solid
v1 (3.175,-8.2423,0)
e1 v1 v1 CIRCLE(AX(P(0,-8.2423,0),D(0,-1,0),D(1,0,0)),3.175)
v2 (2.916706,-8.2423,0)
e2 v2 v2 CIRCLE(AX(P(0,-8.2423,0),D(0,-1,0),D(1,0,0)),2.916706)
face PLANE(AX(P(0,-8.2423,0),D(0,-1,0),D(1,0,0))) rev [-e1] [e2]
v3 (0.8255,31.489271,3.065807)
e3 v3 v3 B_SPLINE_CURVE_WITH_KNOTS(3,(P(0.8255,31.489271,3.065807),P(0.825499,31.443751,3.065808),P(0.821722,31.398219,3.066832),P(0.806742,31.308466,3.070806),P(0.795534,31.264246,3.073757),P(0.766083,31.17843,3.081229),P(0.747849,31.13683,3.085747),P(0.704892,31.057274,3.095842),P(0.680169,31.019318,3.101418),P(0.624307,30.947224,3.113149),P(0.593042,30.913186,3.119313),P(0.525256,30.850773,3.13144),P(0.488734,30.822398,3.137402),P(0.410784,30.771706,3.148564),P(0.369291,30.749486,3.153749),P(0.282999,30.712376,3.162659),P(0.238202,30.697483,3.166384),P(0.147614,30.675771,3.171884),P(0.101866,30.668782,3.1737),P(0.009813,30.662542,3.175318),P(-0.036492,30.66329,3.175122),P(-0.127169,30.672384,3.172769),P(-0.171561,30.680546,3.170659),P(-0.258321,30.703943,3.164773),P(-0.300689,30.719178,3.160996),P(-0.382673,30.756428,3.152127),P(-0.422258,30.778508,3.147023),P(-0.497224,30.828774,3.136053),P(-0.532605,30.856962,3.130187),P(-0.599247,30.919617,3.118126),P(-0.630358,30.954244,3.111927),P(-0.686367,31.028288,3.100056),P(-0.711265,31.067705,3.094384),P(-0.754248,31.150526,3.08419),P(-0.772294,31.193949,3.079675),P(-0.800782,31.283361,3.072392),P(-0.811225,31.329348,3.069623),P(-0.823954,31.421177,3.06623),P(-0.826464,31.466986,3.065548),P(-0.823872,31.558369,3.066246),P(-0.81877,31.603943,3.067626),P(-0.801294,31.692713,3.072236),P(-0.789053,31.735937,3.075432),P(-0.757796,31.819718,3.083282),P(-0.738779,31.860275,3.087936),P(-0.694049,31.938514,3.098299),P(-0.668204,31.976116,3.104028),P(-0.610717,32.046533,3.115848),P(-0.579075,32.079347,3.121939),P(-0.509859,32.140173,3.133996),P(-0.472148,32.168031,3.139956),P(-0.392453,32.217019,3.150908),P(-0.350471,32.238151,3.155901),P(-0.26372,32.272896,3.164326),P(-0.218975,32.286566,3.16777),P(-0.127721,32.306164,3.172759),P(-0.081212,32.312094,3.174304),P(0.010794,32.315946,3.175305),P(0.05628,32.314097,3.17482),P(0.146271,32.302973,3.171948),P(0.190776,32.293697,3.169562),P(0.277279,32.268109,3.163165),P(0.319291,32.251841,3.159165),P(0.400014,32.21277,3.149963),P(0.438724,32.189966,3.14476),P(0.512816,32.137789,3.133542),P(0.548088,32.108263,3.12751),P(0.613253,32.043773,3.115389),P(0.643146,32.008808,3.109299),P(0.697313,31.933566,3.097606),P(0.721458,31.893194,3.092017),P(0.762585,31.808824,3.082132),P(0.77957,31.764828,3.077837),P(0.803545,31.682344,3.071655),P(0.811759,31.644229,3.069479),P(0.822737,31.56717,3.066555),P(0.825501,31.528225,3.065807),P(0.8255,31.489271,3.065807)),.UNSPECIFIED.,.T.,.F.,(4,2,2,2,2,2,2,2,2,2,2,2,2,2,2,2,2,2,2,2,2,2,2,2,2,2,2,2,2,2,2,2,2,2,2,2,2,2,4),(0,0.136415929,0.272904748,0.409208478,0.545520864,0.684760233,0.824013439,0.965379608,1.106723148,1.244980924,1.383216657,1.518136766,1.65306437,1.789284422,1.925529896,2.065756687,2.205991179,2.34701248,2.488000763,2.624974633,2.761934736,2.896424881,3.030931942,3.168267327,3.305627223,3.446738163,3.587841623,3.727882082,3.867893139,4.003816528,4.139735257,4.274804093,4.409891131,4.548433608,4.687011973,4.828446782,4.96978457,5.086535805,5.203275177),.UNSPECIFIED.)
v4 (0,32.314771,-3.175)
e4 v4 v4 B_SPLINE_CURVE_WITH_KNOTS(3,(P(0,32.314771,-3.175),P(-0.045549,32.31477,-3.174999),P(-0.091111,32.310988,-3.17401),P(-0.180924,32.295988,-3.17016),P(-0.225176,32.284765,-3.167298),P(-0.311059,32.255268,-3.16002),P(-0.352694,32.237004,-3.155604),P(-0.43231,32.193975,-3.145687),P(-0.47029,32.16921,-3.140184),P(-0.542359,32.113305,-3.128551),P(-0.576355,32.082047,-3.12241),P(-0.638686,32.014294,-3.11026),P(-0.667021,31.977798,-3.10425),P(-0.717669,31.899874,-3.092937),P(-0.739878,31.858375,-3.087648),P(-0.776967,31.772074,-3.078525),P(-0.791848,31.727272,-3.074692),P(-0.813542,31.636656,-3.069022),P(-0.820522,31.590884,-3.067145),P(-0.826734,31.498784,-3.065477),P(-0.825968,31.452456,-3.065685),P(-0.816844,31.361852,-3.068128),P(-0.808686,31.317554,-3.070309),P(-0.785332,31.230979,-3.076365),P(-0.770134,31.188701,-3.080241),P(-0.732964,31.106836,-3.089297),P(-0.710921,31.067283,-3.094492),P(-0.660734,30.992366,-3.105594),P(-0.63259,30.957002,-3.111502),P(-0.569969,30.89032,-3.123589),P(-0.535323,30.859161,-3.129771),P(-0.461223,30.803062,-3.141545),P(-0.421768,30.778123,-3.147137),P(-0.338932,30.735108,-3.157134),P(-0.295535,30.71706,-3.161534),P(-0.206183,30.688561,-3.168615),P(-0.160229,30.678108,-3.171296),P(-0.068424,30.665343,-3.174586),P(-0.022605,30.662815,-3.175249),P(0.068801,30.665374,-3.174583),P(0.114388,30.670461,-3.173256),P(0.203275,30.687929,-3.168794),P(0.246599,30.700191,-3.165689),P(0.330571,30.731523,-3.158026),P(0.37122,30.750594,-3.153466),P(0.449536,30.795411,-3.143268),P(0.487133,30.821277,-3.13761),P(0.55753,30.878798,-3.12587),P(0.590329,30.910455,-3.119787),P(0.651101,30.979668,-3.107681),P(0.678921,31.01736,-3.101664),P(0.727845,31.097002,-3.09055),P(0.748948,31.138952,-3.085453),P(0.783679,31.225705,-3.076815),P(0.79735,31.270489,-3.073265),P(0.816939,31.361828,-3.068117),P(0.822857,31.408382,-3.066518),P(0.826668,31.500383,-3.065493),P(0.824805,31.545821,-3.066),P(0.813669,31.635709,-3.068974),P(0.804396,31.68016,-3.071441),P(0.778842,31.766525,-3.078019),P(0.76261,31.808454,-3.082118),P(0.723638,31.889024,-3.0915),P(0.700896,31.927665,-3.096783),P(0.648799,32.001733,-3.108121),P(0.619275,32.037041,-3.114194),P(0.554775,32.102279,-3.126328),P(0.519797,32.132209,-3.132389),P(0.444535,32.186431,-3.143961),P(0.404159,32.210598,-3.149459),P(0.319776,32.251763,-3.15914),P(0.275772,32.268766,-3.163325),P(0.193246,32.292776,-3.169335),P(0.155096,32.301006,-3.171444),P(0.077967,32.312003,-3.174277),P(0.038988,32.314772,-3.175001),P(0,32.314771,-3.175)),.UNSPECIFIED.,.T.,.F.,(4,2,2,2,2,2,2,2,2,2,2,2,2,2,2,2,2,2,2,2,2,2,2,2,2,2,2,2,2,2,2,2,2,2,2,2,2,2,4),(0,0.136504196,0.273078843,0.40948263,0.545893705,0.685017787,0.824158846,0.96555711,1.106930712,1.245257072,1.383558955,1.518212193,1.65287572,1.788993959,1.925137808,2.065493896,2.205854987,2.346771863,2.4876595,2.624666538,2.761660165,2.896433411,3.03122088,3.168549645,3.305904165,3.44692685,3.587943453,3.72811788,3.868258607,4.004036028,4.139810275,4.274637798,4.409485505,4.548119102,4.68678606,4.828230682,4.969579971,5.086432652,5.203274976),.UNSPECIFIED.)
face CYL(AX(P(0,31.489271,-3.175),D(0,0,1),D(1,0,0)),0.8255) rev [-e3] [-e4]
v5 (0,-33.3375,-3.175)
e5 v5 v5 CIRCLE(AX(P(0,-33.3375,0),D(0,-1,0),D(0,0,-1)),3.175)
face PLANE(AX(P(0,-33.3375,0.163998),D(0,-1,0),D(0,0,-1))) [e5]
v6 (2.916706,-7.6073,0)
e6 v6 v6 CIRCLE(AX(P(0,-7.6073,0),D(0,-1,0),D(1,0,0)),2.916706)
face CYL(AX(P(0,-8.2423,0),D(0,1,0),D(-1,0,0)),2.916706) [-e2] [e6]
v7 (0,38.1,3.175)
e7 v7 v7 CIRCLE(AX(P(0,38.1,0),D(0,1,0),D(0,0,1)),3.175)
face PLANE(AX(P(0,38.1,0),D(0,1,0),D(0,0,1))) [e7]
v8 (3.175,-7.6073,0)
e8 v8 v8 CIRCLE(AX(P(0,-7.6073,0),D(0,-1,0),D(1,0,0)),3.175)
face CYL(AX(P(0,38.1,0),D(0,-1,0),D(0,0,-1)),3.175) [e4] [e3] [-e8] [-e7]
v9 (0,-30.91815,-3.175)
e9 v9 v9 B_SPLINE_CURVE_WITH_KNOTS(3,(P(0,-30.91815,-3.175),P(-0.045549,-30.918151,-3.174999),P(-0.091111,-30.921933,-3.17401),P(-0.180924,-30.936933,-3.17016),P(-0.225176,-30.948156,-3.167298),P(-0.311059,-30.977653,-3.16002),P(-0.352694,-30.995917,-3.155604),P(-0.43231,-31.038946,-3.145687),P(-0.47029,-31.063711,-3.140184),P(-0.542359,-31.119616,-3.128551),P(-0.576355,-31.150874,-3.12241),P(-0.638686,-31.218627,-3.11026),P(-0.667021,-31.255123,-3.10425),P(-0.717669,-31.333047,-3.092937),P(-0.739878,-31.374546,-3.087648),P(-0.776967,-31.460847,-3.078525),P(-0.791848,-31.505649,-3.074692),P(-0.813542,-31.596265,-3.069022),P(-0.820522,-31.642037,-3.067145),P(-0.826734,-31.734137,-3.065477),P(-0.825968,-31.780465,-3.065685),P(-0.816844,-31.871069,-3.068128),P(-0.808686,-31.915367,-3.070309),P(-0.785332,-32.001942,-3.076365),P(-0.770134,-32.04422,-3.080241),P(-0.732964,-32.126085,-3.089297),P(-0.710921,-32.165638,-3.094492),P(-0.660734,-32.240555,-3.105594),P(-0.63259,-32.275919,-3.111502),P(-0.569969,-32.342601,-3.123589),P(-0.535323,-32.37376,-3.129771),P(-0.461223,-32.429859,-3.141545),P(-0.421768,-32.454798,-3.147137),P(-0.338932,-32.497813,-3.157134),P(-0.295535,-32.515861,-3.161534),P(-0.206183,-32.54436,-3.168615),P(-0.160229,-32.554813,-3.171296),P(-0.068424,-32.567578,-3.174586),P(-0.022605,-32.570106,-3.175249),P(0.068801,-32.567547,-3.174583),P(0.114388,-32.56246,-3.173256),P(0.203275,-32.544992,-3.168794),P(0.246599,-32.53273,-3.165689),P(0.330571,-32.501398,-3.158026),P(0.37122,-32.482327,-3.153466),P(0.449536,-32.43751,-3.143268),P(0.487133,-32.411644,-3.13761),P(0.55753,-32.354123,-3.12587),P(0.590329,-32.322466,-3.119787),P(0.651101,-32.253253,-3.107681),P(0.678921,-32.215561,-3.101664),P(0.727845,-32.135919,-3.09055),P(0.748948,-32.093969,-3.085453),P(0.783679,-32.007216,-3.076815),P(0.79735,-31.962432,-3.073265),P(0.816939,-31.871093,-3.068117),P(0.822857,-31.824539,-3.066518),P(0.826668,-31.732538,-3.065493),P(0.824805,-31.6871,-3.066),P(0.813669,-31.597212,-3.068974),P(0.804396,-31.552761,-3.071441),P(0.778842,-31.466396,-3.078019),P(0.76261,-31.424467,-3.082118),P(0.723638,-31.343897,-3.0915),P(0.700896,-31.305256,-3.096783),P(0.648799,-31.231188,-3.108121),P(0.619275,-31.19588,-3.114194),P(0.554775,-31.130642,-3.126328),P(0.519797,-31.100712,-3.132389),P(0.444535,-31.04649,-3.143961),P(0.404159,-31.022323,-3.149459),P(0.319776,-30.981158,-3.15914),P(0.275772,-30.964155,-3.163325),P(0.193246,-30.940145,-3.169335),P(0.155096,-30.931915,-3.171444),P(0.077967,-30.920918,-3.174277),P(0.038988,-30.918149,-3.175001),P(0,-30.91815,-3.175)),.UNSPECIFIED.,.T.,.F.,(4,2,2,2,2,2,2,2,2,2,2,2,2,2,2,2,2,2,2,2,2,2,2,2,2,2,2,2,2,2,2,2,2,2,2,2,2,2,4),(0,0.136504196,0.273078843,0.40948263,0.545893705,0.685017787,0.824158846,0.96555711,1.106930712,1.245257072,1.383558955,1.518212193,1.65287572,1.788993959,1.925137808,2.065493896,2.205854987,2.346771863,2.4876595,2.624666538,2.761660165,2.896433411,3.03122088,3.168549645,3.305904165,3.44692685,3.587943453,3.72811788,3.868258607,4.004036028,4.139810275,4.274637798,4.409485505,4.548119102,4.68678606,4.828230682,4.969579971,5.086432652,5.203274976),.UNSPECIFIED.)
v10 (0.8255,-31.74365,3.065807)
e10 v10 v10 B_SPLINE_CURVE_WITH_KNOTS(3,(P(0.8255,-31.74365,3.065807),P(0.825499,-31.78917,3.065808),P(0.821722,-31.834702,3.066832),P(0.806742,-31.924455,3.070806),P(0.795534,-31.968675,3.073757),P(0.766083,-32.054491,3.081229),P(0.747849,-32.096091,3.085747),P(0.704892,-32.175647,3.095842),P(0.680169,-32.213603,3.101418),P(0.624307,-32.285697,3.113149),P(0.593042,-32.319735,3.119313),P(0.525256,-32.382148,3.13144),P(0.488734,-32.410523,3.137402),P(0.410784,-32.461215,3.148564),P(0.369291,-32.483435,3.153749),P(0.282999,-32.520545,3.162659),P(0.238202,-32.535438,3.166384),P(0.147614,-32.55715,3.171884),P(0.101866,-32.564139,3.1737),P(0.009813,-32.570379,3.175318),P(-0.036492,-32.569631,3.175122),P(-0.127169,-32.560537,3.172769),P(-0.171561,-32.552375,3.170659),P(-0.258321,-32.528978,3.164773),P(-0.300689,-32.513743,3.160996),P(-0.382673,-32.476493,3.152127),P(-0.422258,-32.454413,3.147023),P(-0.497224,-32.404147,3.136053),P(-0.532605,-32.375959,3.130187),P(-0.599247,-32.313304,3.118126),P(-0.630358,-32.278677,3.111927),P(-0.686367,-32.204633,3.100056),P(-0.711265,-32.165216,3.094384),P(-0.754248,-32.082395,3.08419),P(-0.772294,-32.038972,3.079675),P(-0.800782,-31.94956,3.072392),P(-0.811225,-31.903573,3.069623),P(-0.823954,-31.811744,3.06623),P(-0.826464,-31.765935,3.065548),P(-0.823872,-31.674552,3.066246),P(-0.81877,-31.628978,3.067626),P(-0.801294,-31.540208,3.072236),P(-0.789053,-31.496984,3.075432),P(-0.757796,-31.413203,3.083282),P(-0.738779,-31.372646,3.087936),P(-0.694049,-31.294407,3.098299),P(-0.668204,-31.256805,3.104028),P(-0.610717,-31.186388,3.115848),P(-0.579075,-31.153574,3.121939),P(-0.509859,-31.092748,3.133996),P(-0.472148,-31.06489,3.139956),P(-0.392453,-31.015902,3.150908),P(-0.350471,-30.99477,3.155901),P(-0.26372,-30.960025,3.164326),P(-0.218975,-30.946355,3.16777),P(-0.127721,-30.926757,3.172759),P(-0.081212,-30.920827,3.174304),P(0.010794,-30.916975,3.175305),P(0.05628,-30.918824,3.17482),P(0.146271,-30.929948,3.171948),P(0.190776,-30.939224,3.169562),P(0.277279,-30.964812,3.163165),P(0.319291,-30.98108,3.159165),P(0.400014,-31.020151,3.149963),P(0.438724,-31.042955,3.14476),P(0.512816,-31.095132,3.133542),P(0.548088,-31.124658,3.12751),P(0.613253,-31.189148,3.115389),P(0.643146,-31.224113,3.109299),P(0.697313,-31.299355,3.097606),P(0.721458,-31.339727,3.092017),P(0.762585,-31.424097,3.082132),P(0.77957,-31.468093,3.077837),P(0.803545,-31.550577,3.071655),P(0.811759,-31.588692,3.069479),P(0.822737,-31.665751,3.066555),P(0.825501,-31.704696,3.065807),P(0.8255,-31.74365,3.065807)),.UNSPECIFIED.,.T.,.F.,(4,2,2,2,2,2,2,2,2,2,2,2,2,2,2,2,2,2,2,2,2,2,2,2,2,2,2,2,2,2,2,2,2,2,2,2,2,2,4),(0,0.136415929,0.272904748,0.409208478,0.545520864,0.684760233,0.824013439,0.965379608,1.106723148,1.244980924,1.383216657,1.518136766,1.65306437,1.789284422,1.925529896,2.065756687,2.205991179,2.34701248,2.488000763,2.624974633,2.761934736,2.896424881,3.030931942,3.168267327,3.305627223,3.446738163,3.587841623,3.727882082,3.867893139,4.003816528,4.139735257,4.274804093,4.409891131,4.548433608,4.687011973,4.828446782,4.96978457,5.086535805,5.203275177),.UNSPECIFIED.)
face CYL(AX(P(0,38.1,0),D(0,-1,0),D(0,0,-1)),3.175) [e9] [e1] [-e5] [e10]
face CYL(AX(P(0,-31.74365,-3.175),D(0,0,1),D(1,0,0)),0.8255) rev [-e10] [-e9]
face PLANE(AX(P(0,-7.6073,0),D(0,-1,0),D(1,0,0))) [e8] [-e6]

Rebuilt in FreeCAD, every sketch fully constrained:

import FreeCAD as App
import Part
import Sketcher
Q = App.Units.Quantity

doc = App.newDocument("Part")
body = doc.addObject("PartDesign::Body", "Body")

sketch1 = doc.addObject("Sketcher::SketchObject", "Sketch")
body.addObject(sketch1)
sketch1.AttachmentSupport = (doc.XZ_Plane, [""])
sketch1.MapMode = "FlatFace"
sketch1.addGeometry(Part.Circle(App.Vector(0, 0, 0), App.Vector(0, 0, 1), 3.2), False)
sketch1.addConstraint([
    Sketcher.Constraint("Coincident", 0, 3, -1, 1),
    Sketcher.Constraint("Diameter", 0, Q("0.25 in")),
])
pad1 = doc.addObject("PartDesign::Pad", "Pad")
body.addObject(pad1)
pad1.Profile = sketch1
pad1.Length = Q("3 in")
pad1.Midplane = True

sketch2 = doc.addObject("Sketcher::SketchObject", "Sketch001")
body.addObject(sketch2)
sketch2.AttachmentSupport = (doc.XZ_Plane, [""])
sketch2.MapMode = "FlatFace"
sketch2.AttachmentOffset = App.Placement(App.Vector(0, 0, 1.5 * 25.4), App.Rotation())
sketch2.addGeometry(Part.Circle(App.Vector(0, 0, 0), App.Vector(0, 0, 1), 7), False)
sketch2.addConstraint([
    Sketcher.Constraint("PointOnObject", 0, 3, -2),
    Sketcher.Constraint("Diameter", 0, Q("14.474346 mm")),
    Sketcher.Constraint("DistanceY", -1, 1, 0, 3, Q("0.163998 mm")),
])
pocket1 = doc.addObject("PartDesign::Pocket", "Pocket")
body.addObject(pocket1)
pocket1.Profile = sketch2
pocket1.Length = Q("0.1875 in")

sketch3 = doc.addObject("Sketcher::SketchObject", "Sketch002")
body.addObject(sketch3)
sketch3.AttachmentSupport = (doc.XY_Plane, [""])
sketch3.MapMode = "FlatFace"
sketch3.addGeometry([
    Part.Circle(App.Vector(0, 31.5, 0), App.Vector(0, 0, 1), 0.8),
    Part.Circle(App.Vector(0, -31.7, 0), App.Vector(0, 0, 1), 0.8),
], False)
sketch3.addConstraint([
    Sketcher.Constraint("Equal", 0, 1),
    Sketcher.Constraint("PointOnObject", 0, 3, -2),
    Sketcher.Constraint("PointOnObject", 1, 3, -2),
    Sketcher.Constraint("Diameter", 0, Q("0.065 in")),
    Sketcher.Constraint("DistanceY", -1, 1, 0, 3, Q("31.489271 mm")),
    Sketcher.Constraint("DistanceY", 1, 3, -1, 1, Q("31.74365 mm")),
])
pocket2 = doc.addObject("PartDesign::Pocket", "Pocket001")
body.addObject(pocket2)
pocket2.Profile = sketch3
pocket2.Type = "ThroughAll"
pocket2.Midplane = True

sketch4 = doc.addObject("Sketcher::SketchObject", "Sketch003")
body.addObject(sketch4)
sketch4.AttachmentSupport = (doc.XZ_Plane, [""])
sketch4.MapMode = "FlatFace"
sketch4.AttachmentOffset = App.Placement(App.Vector(0, 0, 0.2995 * 25.4), App.Rotation())
sketch4.addGeometry([
    Part.Circle(App.Vector(0, 0, 0), App.Vector(0, 0, 1), 3.2),
    Part.Circle(App.Vector(0, 0, 0), App.Vector(0, 0, 1), 2.9),
], False)
sketch4.addConstraint([
    Sketcher.Constraint("Coincident", 0, 3, -1, 1),
    Sketcher.Constraint("Coincident", 1, 3, -1, 1),
    Sketcher.Constraint("Diameter", 0, Q("0.25 in")),
    Sketcher.Constraint("Diameter", 1, Q("5.833411 mm")),
])
pocket3 = doc.addObject("PartDesign::Pocket", "Pocket002")
body.addObject(pocket3)
pocket3.Profile = sketch4
pocket3.Length = Q("0.025 in")
pocket3.Reversed = True

doc.recompute()
